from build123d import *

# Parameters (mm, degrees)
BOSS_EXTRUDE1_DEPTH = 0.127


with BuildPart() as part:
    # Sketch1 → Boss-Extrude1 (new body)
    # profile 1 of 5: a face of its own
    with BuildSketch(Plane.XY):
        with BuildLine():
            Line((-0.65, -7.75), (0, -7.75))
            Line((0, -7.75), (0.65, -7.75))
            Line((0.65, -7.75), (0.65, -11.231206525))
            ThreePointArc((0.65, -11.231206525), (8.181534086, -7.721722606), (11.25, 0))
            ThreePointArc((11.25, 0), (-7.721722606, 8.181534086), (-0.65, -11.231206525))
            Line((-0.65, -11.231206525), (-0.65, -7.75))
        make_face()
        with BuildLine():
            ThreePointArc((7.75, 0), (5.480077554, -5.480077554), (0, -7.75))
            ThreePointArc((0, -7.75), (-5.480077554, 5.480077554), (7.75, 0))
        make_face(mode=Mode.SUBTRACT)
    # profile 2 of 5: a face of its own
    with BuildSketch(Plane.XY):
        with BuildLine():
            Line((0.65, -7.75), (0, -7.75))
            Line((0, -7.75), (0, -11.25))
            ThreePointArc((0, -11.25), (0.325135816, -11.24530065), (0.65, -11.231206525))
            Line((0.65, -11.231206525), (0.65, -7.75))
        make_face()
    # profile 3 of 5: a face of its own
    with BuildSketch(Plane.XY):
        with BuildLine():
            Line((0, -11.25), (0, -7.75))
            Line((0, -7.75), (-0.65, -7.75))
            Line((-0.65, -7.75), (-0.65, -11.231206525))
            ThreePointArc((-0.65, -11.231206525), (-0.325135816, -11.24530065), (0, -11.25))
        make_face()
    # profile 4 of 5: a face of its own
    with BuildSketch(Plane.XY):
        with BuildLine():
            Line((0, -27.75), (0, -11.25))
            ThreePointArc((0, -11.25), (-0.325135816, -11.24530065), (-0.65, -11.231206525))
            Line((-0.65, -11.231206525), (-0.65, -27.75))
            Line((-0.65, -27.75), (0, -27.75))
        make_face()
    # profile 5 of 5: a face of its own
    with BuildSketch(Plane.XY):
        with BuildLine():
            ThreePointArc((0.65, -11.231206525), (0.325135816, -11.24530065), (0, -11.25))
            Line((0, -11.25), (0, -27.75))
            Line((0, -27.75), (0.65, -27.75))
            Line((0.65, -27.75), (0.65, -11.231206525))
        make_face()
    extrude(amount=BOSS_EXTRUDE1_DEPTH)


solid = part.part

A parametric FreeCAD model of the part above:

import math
import FreeCAD as App
import Part
import Sketcher
from FreeCAD import Vector

doc = App.newDocument("Part")
body = doc.addObject("PartDesign::Body", "Body")

# Sketch on XY plane
sketch1 = body.newObject("Sketcher::SketchObject", "Sketch")
sketch1.AttachmentSupport = (doc.getObject("XY_Plane"), [""])
sketch1.MapMode = "FlatFace"
sketch1.addGeometry([
    Part.ArcOfCircle(Part.Circle(Vector(0, 0, 0), Vector(0, 0, 1), 11.25), math.radians(0), math.radians(266.687733)),  # 0
    Part.LineSegment(Vector(-0.65, -11.231207, 0), Vector(-0.65, -27.75, 0)),  # 1
    Part.LineSegment(Vector(-0.65, -27.75, 0), Vector(0.65, -27.75, 0)),  # 2
    Part.LineSegment(Vector(0.65, -27.75, 0), Vector(0.65, -11.231207, 0)),  # 3
    Part.ArcOfCircle(Part.Circle(Vector(0, 0, 0), Vector(0, 0, 1), 11.25), math.radians(-86.687733), math.radians(0)),  # 4
    Part.ArcOfCircle(Part.Circle(Vector(0, 0, 0), Vector(0, 0, 1), 7.75), math.radians(-90), math.radians(0)),  # 5
    Part.ArcOfCircle(Part.Circle(Vector(0, 0, 0), Vector(0, 0, 1), 7.75), math.radians(0), math.radians(270)),  # 6
], False)
sketch1.addConstraint([
    Sketcher.Constraint("Coincident", 0, 2, 1, 1),
    Sketcher.Constraint("Coincident", 1, 2, 2, 1),
    Sketcher.Constraint("Coincident", 2, 2, 3, 1),
    Sketcher.Constraint("Coincident", 3, 2, 4, 1),
    Sketcher.Constraint("Tangent", 4, 2, 0, 1),
    Sketcher.Constraint("Tangent", 5, 1, 6, 2),
    Sketcher.Constraint("Coincident", 6, 1, 5, 2),
    Sketcher.Constraint("Vertical", 1),
    Sketcher.Constraint("Horizontal", 2),
    Sketcher.Constraint("Vertical", 3),
    Sketcher.Constraint("Coincident", 0, 3, -1, 1),
    Sketcher.Constraint("Coincident", 5, 3, -1, 1),
    Sketcher.Constraint("Equal", 0, 4),
    Sketcher.Constraint("PointOnObject", 4, 2, -1),
    Sketcher.Constraint("PointOnObject", 5, 1, -2),
    Sketcher.Constraint("PointOnObject", 6, 1, -1),
    Sketcher.Constraint("Horizontal", 0, 2, 3, 2),
    Sketcher.Constraint("Radius", 0, 11.25),
    Sketcher.Constraint("Radius", 5, 7.75),
    Sketcher.Constraint("DistanceX", 2, 1, 2, 2, 1.3),
    Sketcher.Constraint("DistanceY", 1, 2, -1, 1, 27.75),
])
pad1 = body.newObject("PartDesign::Pad", "Pad")
pad1.Profile = sketch1
pad1.Length = 0.127

doc.recompute()
